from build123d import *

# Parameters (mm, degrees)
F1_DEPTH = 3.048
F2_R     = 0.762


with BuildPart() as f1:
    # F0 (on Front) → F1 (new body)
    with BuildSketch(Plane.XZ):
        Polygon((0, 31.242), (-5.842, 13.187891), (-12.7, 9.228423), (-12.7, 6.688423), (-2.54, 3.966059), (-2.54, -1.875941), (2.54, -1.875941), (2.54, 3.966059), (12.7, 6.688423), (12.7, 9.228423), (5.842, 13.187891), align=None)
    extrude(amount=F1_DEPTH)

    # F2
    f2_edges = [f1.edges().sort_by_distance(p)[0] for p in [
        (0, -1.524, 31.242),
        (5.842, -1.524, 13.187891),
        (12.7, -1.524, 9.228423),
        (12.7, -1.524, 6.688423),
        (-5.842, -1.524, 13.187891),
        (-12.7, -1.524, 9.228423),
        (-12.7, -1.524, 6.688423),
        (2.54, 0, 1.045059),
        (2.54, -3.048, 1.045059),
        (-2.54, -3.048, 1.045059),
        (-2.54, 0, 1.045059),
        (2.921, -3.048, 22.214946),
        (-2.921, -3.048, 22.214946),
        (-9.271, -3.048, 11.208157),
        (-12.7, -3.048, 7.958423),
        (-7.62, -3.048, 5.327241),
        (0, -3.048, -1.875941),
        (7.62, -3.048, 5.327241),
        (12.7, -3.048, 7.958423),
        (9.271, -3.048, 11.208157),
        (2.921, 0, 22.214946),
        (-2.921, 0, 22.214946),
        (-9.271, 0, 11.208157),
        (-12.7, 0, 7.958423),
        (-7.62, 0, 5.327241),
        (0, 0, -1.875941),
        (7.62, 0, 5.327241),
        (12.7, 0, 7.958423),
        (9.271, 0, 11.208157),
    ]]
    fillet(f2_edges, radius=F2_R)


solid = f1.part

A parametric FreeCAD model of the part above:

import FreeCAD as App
import Part
import Sketcher

V = App.Vector
Q = App.Units.Quantity


def edges_at(feature, points):
    """Names of the edges that pass closest to the given points."""
    edges = feature.Shape.Edges
    near = lambda p: min(range(len(edges)), key=lambda i: edges[i].distToShape(Part.Vertex(*p))[0])
    return sorted({f"Edge{near(p) + 1}" for p in points})


def add_polygon(sketch, points):
    """Adds a closed chain of lines whose ends are joined by coincident constraints."""
    first, n = sketch.GeometryCount, len(points)
    for a, b in zip(points, points[1:] + points[:1]):
        sketch.addGeometry(Part.LineSegment(App.Vector(*a, 0), App.Vector(*b, 0)), False)
    for i in range(n):
        sketch.addConstraint(Sketcher.Constraint("Coincident", first + i, 2, first + (i + 1) % n, 1))

doc = App.newDocument("Part")
body = doc.addObject("PartDesign::Body", "Body")

sketch1 = doc.addObject("Sketcher::SketchObject", "Sketch")
body.addObject(sketch1)
sketch1.AttachmentSupport = (doc.XZ_Plane, [""])
sketch1.MapMode = "FlatFace"
add_polygon(sketch1, [(0, 31.2), (-5.8, 13.2), (-12.7, 9.2), (-12.7, 6.7), (-2.5, 4), (-2.5, -1.9), (2.5, -1.9), (2.5, 4), (12.7, 6.7), (12.7, 9.2), (5.8, 13.2)])
sketch1.addConstraint([
    Sketcher.Constraint("Vertical", 2),
    Sketcher.Constraint("Vertical", 4),
    Sketcher.Constraint("Horizontal", 5),
    Sketcher.Constraint("Vertical", 6),
    Sketcher.Constraint("Vertical", 8),
    Sketcher.Constraint("Symmetric", 3, 2, 6, 2, -2),
    Sketcher.Constraint("Symmetric", 2, 2, 7, 2, -2),
    Sketcher.Constraint("Symmetric", 0, 2, 9, 2, -2),
    Sketcher.Constraint("PointOnObject", 10, 2, -2),
    Sketcher.Constraint("Horizontal", 1, 2, 8, 2),
    Sketcher.Constraint("DistanceX", 5, 1, 5, 2, Q("0.2 in")),
    Sketcher.Constraint("DistanceY", 2, 2, 2, 1, Q("0.1 in")),
    Sketcher.Constraint("Angle", 1, Q("-150.000001 deg")),
    Sketcher.Constraint("Angle", 3, Q("-15.000001 deg")),
    Sketcher.Constraint("DistanceY", 4, 2, 4, 1, Q("0.23 in")),
    Sketcher.Constraint("DistanceX", 1, 2, -1, 1, Q("0.5 in")),
    Sketcher.Constraint("DistanceX", 0, 2, -1, 1, Q("0.23 in")),
    Sketcher.Constraint("DistanceY", -1, 1, 10, 2, Q("1.23 in")),
    Sketcher.Constraint("Distance", 0, Q("18.975769 mm")),
])
pad1 = doc.addObject("PartDesign::Pad", "Pad")
body.addObject(pad1)
pad1.Profile = sketch1
pad1.Length = Q("0.12 in")
doc.recompute()

fillet = doc.addObject("PartDesign::Fillet", "Fillet")
body.addObject(fillet)
fillet.Base = (pad1, edges_at(pad1, [
    (0, -1.524, 31.242),
    (5.842, -1.524, 13.188),
    (12.7, -1.524, 9.228),
    (12.7, -1.524, 6.688),
    (-5.842, -1.524, 13.188),
    (-12.7, -1.524, 9.228),
    (-12.7, -1.524, 6.688),
    (2.54, 0, 1.045),
    (2.54, -3.048, 1.045),
    (-2.54, -3.048, 1.045),
    (-2.54, 0, 1.045),
    (2.921, -3.048, 22.215),
    (-2.921, -3.048, 22.215),
    (-9.271, -3.048, 11.208),
    (-12.7, -3.048, 7.958),
    (-7.62, -3.048, 5.327),
    (0, -3.048, -1.876),
    (7.62, -3.048, 5.327),
    (12.7, -3.048, 7.958),
    (9.271, -3.048, 11.208),
    (2.921, 0, 22.215),
    (-2.921, 0, 22.215),
    (-9.271, 0, 11.208),
    (-12.7, 0, 7.958),
    (-7.62, 0, 5.327),
    (0, 0, -1.876),
    (7.62, 0, 5.327),
    (12.7, 0, 7.958),
    (9.271, 0, 11.208),
]))
fillet.Radius = Q("0.03 in")

doc.recompute()
